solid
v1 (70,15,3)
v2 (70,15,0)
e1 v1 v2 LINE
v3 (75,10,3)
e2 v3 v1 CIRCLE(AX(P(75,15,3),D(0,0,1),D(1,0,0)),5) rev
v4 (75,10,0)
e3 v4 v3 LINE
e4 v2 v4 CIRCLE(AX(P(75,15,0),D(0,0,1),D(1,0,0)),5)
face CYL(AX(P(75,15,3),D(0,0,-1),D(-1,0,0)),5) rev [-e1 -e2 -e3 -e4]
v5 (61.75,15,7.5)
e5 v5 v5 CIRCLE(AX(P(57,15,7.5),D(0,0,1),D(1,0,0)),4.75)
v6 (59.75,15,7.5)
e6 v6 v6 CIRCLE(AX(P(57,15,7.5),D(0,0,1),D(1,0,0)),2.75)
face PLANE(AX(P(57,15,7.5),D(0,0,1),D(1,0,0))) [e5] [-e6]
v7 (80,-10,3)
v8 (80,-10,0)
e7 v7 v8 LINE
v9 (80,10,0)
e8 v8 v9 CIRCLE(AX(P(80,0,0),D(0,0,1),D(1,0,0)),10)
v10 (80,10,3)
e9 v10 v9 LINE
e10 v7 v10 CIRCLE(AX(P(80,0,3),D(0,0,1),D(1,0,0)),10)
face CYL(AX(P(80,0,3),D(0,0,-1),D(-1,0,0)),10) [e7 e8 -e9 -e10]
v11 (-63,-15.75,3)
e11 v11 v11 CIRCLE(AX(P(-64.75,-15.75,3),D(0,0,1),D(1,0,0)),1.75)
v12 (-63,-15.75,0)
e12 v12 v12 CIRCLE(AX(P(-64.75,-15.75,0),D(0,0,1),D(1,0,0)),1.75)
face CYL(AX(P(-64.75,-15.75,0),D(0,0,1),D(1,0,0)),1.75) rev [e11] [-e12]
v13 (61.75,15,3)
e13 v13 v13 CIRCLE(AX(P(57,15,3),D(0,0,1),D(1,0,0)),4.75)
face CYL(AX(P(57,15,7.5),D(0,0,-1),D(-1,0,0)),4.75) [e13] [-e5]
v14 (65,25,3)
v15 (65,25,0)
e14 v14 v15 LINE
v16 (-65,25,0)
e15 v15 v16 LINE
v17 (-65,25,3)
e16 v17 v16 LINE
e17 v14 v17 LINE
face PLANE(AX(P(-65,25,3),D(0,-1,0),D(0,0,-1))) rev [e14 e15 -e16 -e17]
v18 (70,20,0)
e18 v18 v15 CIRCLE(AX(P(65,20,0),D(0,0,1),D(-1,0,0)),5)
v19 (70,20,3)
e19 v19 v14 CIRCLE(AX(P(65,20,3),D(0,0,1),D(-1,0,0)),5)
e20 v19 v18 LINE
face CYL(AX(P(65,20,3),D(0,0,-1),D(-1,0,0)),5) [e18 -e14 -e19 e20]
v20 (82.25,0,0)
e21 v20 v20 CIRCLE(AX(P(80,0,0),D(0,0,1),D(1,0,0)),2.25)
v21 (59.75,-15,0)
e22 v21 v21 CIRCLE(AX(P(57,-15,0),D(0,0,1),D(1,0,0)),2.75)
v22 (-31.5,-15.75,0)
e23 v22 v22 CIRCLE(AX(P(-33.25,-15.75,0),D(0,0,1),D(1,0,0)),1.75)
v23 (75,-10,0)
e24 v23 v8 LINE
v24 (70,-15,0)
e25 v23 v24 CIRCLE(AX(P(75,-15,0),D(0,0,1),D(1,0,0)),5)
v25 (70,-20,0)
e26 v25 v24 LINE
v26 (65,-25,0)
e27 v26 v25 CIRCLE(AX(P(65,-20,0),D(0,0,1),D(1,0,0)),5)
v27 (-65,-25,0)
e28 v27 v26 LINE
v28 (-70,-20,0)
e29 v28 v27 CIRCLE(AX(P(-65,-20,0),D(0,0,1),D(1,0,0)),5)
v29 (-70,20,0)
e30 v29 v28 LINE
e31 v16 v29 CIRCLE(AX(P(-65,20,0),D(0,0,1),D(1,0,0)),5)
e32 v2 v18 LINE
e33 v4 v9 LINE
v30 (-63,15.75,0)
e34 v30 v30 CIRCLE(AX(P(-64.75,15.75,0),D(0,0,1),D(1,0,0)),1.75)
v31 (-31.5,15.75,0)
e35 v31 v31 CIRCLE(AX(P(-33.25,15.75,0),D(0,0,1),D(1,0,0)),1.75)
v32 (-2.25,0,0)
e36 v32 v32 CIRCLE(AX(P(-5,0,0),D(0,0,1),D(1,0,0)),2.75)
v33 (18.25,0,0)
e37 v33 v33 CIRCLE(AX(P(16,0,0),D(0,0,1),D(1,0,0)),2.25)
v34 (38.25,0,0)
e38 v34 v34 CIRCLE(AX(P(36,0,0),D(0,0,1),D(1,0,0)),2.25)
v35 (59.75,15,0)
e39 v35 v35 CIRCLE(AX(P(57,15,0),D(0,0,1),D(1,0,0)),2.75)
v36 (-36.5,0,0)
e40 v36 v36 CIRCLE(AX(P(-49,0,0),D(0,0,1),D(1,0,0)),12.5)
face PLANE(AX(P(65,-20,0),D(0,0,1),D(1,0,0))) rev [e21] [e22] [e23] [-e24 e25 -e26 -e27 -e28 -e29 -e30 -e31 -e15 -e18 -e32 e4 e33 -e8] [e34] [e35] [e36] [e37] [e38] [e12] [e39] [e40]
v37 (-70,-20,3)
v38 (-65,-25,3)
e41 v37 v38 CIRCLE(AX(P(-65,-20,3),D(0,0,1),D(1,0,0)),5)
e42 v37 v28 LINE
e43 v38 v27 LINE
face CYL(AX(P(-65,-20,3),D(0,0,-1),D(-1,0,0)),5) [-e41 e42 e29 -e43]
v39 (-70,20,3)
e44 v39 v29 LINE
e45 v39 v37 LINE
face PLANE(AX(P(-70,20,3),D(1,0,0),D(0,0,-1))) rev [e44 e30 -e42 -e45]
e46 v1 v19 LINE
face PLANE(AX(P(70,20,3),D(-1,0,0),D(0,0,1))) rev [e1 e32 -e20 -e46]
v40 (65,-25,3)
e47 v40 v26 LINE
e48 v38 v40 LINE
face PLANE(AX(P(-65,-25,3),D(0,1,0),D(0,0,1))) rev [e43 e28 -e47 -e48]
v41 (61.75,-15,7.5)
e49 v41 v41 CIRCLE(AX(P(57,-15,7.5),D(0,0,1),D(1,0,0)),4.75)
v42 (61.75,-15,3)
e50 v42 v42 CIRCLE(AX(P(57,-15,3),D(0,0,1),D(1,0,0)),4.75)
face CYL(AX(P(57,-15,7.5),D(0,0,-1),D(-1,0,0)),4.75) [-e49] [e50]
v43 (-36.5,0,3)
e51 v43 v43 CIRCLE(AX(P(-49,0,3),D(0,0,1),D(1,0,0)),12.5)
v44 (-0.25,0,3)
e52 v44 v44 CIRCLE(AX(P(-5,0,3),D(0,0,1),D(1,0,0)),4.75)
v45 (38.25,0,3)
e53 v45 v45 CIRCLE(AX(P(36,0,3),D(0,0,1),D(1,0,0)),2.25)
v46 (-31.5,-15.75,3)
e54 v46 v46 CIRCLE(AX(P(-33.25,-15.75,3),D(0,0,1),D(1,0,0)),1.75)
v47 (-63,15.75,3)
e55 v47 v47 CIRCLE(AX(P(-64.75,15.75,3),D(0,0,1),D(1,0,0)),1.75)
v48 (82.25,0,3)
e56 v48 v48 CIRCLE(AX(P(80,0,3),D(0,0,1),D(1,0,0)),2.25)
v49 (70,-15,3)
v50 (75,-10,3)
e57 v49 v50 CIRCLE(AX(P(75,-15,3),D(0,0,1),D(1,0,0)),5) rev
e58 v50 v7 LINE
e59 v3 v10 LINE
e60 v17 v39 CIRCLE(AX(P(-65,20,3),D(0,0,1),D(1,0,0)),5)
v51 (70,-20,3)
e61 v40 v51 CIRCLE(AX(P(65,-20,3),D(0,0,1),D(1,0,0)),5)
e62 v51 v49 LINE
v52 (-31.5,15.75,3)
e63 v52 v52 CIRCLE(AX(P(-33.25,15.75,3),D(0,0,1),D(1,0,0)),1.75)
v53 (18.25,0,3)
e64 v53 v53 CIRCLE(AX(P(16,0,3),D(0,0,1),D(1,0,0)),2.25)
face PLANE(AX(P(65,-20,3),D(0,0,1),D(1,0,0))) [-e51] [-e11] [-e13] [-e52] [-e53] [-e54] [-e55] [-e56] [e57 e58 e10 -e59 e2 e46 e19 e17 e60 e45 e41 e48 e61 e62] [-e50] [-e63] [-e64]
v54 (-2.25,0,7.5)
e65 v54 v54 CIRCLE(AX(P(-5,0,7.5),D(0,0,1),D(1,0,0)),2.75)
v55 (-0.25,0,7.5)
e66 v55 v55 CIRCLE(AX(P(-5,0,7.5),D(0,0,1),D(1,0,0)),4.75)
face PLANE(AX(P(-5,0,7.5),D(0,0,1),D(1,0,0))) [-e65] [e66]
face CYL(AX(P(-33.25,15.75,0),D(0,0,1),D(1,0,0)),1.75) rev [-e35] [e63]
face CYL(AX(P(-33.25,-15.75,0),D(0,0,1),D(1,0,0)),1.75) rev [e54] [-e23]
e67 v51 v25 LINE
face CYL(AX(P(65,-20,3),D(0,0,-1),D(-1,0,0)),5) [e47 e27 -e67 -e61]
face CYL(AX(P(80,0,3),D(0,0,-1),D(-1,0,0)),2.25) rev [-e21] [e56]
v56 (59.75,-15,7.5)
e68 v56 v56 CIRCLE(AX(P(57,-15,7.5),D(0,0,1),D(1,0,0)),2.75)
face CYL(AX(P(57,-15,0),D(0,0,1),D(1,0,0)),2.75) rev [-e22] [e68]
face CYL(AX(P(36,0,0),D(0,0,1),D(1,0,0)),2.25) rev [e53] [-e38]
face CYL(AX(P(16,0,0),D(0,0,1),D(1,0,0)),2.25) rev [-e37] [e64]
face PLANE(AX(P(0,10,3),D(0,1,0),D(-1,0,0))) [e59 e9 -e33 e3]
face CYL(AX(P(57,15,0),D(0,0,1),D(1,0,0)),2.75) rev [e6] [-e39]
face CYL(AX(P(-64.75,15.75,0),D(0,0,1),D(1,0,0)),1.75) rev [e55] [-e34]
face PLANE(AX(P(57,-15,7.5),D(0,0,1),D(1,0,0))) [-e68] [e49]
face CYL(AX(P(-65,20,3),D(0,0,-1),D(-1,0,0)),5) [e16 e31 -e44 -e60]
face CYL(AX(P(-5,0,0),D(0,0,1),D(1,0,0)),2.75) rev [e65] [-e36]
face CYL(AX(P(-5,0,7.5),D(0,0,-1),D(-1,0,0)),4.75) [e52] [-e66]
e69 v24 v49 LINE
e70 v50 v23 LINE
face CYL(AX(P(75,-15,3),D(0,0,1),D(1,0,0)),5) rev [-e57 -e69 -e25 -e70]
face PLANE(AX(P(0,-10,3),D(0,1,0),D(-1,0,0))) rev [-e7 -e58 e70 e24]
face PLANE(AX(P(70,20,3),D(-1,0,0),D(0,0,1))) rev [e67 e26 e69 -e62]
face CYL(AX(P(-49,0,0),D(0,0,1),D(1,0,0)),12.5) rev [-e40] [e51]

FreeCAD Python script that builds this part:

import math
import FreeCAD as App
import Part
import Sketcher

V = App.Vector


def edges_at(feature, points):
    """Names of the edges that pass closest to the given points."""
    edges = feature.Shape.Edges
    near = lambda p: min(range(len(edges)), key=lambda i: edges[i].distToShape(Part.Vertex(*p))[0])
    return sorted({f"Edge{near(p) + 1}" for p in points})

doc = App.newDocument("Part")
body = doc.addObject("PartDesign::Body", "Body")

sketch1 = doc.addObject("Sketcher::SketchObject", "Sketch")
body.addObject(sketch1)
sketch1.AttachmentSupport = (doc.XY_Plane, [""])
sketch1.MapMode = "FlatFace"
sketch1.addGeometry(Part.LineSegment(V(65, 25, 0), V(-65, 25, 0)), False)
sketch1.addGeometry(Part.ArcOfCircle(Part.Circle(V(-65, 20, 0), V(0, 0, 1), 5), math.radians(90), math.radians(180)), False)
sketch1.addGeometry(Part.LineSegment(V(-70, 20, 0), V(-70, -20, 0)), False)
sketch1.addGeometry(Part.ArcOfCircle(Part.Circle(V(-65, -20, 0), V(0, 0, 1), 5), math.radians(180), math.radians(270)), False)
sketch1.addGeometry(Part.LineSegment(V(-65, -25, 0), V(65, -25, 0)), False)
sketch1.addGeometry(Part.ArcOfCircle(Part.Circle(V(65, -20, 0), V(0, 0, 1), 5), math.radians(-90), math.radians(0)), False)
sketch1.addGeometry(Part.LineSegment(V(70, -20, 0), V(70, 20, 0)), False)
sketch1.addGeometry(Part.ArcOfCircle(Part.Circle(V(65, 20, 0), V(0, 0, 1), 5), math.radians(0), math.radians(90)), False)
sketch1.addConstraint(Sketcher.Constraint("Tangent", 0, 2, 1, 1))
sketch1.addConstraint(Sketcher.Constraint("Tangent", 1, 2, 2, 1))
sketch1.addConstraint(Sketcher.Constraint("Tangent", 2, 2, 3, 1))
sketch1.addConstraint(Sketcher.Constraint("Tangent", 3, 2, 4, 1))
sketch1.addConstraint(Sketcher.Constraint("Tangent", 4, 2, 5, 1))
sketch1.addConstraint(Sketcher.Constraint("Tangent", 5, 2, 6, 1))
sketch1.addConstraint(Sketcher.Constraint("Tangent", 6, 2, 7, 1))
sketch1.addConstraint(Sketcher.Constraint("Tangent", 7, 2, 0, 1))
sketch1.addConstraint(Sketcher.Constraint("Horizontal", 0))
sketch1.addConstraint(Sketcher.Constraint("Vertical", 2))
sketch1.addConstraint(Sketcher.Constraint("Horizontal", 4))
sketch1.addConstraint(Sketcher.Constraint("Vertical", 6))
sketch1.addConstraint(Sketcher.Constraint("Equal", 1, 3))
sketch1.addConstraint(Sketcher.Constraint("Equal", 3, 5))
sketch1.addConstraint(Sketcher.Constraint("Equal", 5, 7))
sketch1.addConstraint(Sketcher.Constraint("Symmetric", 1, 3, 5, 3, -1, 1))
sketch1.addConstraint(Sketcher.Constraint("Radius", 1, 5.0))
sketch1.addConstraint(Sketcher.Constraint("DistanceX", 0, 2, 0, 1, 130.0))
sketch1.addConstraint(Sketcher.Constraint("DistanceY", 2, 2, 2, 1, 40.0))
pad1 = doc.addObject("PartDesign::Pad", "Pad")
body.addObject(pad1)
pad1.Profile = sketch1
pad1.Length = 3

sketch2 = doc.addObject("Sketcher::SketchObject", "Sketch001")
body.addObject(sketch2)
sketch2.AttachmentSupport = (doc.XY_Plane, [""])
sketch2.MapMode = "FlatFace"
sketch2.AttachmentOffset = App.Placement(V(0, 0, 3), App.Rotation())
sketch2.addGeometry(Part.Circle(V(-64.75, 15.75, 0), V(0, 0, 1), 1.75), False)
sketch2.addGeometry(Part.Circle(V(-33.25, 15.75, 0), V(0, 0, 1), 1.75), False)
sketch2.addGeometry(Part.Circle(V(-64.75, -15.75, 0), V(0, 0, 1), 1.75), False)
sketch2.addGeometry(Part.Circle(V(-33.25, -15.75, 0), V(0, 0, 1), 1.75), False)
sketch2.addGeometry(Part.Circle(V(-49, 0, 0), V(0, 0, 1), 12.5), False)
sketch2.addGeometry(Part.Circle(V(57, 15, 0), V(0, 0, 1), 2.75), False)
sketch2.addGeometry(Part.Circle(V(57, -15, 0), V(0, 0, 1), 2.75), False)
sketch2.addGeometry(Part.Circle(V(-5, 0, 0), V(0, 0, 1), 2.75), False)
sketch2.addConstraint(Sketcher.Constraint("Equal", 0, 1))
sketch2.addConstraint(Sketcher.Constraint("Equal", 1, 2))
sketch2.addConstraint(Sketcher.Constraint("Equal", 2, 3))
sketch2.addConstraint(Sketcher.Constraint("Equal", 5, 6))
sketch2.addConstraint(Sketcher.Constraint("Equal", 6, 7))
sketch2.addConstraint(Sketcher.Constraint("Symmetric", 0, 3, 2, 3, -1))
sketch2.addConstraint(Sketcher.Constraint("Symmetric", 1, 3, 3, 3, -1))
sketch2.addConstraint(Sketcher.Constraint("Symmetric", 5, 3, 6, 3, -1))
sketch2.addConstraint(Sketcher.Constraint("PointOnObject", 4, 3, -1))
sketch2.addConstraint(Sketcher.Constraint("PointOnObject", 7, 3, -1))
sketch2.addConstraint(Sketcher.Constraint("Horizontal", 0, 3, 1, 3))
sketch2.addConstraint(Sketcher.Constraint("Diameter", 4, 25.0))
sketch2.addConstraint(Sketcher.Constraint("Diameter", 0, 3.5))
sketch2.addConstraint(Sketcher.Constraint("Diameter", 5, 5.5))
sketch2.addConstraint(Sketcher.Constraint("DistanceX", 4, 3, -1, 1, 49.0))
sketch2.addConstraint(Sketcher.Constraint("DistanceX", -1, 1, 5, 3, 57.0))
sketch2.addConstraint(Sketcher.Constraint("DistanceY", -1, 1, 5, 3, 15.0))
sketch2.addConstraint(Sketcher.Constraint("DistanceX", 7, 3, -1, 1, 5.0))
sketch2.addConstraint(Sketcher.Constraint("DistanceX", 0, 3, 1, 3, 31.5))
sketch2.addConstraint(Sketcher.Constraint("DistanceY", 2, 3, 0, 3, 31.5))
sketch2.addConstraint(Sketcher.Constraint("DistanceX", 0, 3, -1, 1, 64.75))
pocket1 = doc.addObject("PartDesign::Pocket", "Pocket")
body.addObject(pocket1)
pocket1.Profile = sketch2
pocket1.Length = 3

sketch3 = doc.addObject("Sketcher::SketchObject", "Sketch002")
body.addObject(sketch3)
sketch3.AttachmentSupport = (doc.XY_Plane, [""])
sketch3.MapMode = "FlatFace"
sketch3.AttachmentOffset = App.Placement(V(0, 0, 3), App.Rotation())
sketch3.addGeometry(Part.Circle(V(57, 15, 0), V(0, 0, 1), 4.75), False)
sketch3.addGeometry(Part.Circle(V(57, 15, 0), V(0, 0, 1), 2.75), False)
sketch3.addGeometry(Part.Circle(V(-5, 0, 0), V(0, 0, 1), 4.75), False)
sketch3.addGeometry(Part.Circle(V(-5, 0, 0), V(0, 0, 1), 2.75), False)
sketch3.addGeometry(Part.Circle(V(57, -15, 0), V(0, 0, 1), 4.75), False)
sketch3.addGeometry(Part.Circle(V(57, -15, 0), V(0, 0, 1), 2.75), False)
sketch3.addConstraint(Sketcher.Constraint("Coincident", 1, 3, 0, 3))
sketch3.addConstraint(Sketcher.Constraint("Coincident", 3, 3, 2, 3))
sketch3.addConstraint(Sketcher.Constraint("Coincident", 5, 3, 4, 3))
sketch3.addConstraint(Sketcher.Constraint("Equal", 0, 2))
sketch3.addConstraint(Sketcher.Constraint("Equal", 1, 3))
sketch3.addConstraint(Sketcher.Constraint("Equal", 2, 4))
sketch3.addConstraint(Sketcher.Constraint("Equal", 3, 5))
sketch3.addConstraint(Sketcher.Constraint("Symmetric", 0, 3, 4, 3, -1))
sketch3.addConstraint(Sketcher.Constraint("PointOnObject", 2, 3, -1))
sketch3.addConstraint(Sketcher.Constraint("Diameter", 0, 9.5))
sketch3.addConstraint(Sketcher.Constraint("Diameter", 1, 5.5))
sketch3.addConstraint(Sketcher.Constraint("DistanceX", -1, 1, 0, 3, 57.0))
sketch3.addConstraint(Sketcher.Constraint("DistanceY", -1, 1, 0, 3, 15.0))
sketch3.addConstraint(Sketcher.Constraint("DistanceX", 2, 3, -1, 1, 5.0))
pad2 = doc.addObject("PartDesign::Pad", "Pad001")
body.addObject(pad2)
pad2.Profile = sketch3
pad2.Length = 4.5

sketch4 = doc.addObject("Sketcher::SketchObject", "Sketch003")
body.addObject(sketch4)
sketch4.AttachmentSupport = (doc.XY_Plane, [""])
sketch4.MapMode = "FlatFace"
sketch4.addGeometry(Part.LineSegment(V(70, 10, 0), V(70, -10, 0)), False)
sketch4.addGeometry(Part.LineSegment(V(70, -10, 0), V(80, -10, 0)), False)
sketch4.addGeometry(Part.ArcOfCircle(Part.Circle(V(80, 0, 0), V(0, 0, 1), 10), math.radians(-90), math.radians(90)), False)
sketch4.addGeometry(Part.LineSegment(V(80, 10, 0), V(70, 10, 0)), False)
sketch4.addGeometry(Part.Circle(V(80, 0, 0), V(0, 0, 1), 2.25), False)
sketch4.addConstraint(Sketcher.Constraint("Coincident", 0, 2, 1, 1))
sketch4.addConstraint(Sketcher.Constraint("Tangent", 1, 2, 2, 1))
sketch4.addConstraint(Sketcher.Constraint("Tangent", 2, 2, 3, 1))
sketch4.addConstraint(Sketcher.Constraint("Coincident", 3, 2, 0, 1))
sketch4.addConstraint(Sketcher.Constraint("Vertical", 0))
sketch4.addConstraint(Sketcher.Constraint("Horizontal", 1))
sketch4.addConstraint(Sketcher.Constraint("Horizontal", 3))
sketch4.addConstraint(Sketcher.Constraint("Coincident", 4, 3, 2, 3))
sketch4.addConstraint(Sketcher.Constraint("PointOnObject", 2, 3, -1))
sketch4.addConstraint(Sketcher.Constraint("Radius", 2, 10.0))
sketch4.addConstraint(Sketcher.Constraint("Diameter", 4, 4.5))
sketch4.addConstraint(Sketcher.Constraint("DistanceX", 1, 1, 1, 2, 10.0))
sketch4.addConstraint(Sketcher.Constraint("DistanceX", -1, 1, 2, 3, 80.0))
pad3 = doc.addObject("PartDesign::Pad", "Pad002")
body.addObject(pad3)
pad3.Profile = sketch4
pad3.Length = 3
doc.recompute()

fillet = doc.addObject("PartDesign::Fillet", "Fillet")
body.addObject(fillet)
fillet.Base = (pad3, edges_at(pad3, [(70, -10, 1.5), (70, 10, 1.5)]))
fillet.Radius = 5

sketch5 = doc.addObject("Sketcher::SketchObject", "Sketch004")
body.addObject(sketch5)
sketch5.AttachmentSupport = (doc.XY_Plane, [""])
sketch5.MapMode = "FlatFace"
sketch5.AttachmentOffset = App.Placement(V(0, 0, 3), App.Rotation())
sketch5.addGeometry(Part.Circle(V(16, 0, 0), V(0, 0, 1), 2.25), False)
sketch5.addGeometry(Part.Circle(V(36, 0, 0), V(0, 0, 1), 2.25), False)
sketch5.addConstraint(Sketcher.Constraint("Equal", 0, 1))
sketch5.addConstraint(Sketcher.Constraint("PointOnObject", 0, 3, -1))
sketch5.addConstraint(Sketcher.Constraint("PointOnObject", 1, 3, -1))
sketch5.addConstraint(Sketcher.Constraint("Diameter", 0, 4.5))
sketch5.addConstraint(Sketcher.Constraint("DistanceX", -1, 1, 0, 3, 16.0))
sketch5.addConstraint(Sketcher.Constraint("DistanceX", -1, 1, 1, 3, 36.0))
pocket2 = doc.addObject("PartDesign::Pocket", "Pocket001")
body.addObject(pocket2)
pocket2.Profile = sketch5
pocket2.Type = "ThroughAll"

doc.recompute()
